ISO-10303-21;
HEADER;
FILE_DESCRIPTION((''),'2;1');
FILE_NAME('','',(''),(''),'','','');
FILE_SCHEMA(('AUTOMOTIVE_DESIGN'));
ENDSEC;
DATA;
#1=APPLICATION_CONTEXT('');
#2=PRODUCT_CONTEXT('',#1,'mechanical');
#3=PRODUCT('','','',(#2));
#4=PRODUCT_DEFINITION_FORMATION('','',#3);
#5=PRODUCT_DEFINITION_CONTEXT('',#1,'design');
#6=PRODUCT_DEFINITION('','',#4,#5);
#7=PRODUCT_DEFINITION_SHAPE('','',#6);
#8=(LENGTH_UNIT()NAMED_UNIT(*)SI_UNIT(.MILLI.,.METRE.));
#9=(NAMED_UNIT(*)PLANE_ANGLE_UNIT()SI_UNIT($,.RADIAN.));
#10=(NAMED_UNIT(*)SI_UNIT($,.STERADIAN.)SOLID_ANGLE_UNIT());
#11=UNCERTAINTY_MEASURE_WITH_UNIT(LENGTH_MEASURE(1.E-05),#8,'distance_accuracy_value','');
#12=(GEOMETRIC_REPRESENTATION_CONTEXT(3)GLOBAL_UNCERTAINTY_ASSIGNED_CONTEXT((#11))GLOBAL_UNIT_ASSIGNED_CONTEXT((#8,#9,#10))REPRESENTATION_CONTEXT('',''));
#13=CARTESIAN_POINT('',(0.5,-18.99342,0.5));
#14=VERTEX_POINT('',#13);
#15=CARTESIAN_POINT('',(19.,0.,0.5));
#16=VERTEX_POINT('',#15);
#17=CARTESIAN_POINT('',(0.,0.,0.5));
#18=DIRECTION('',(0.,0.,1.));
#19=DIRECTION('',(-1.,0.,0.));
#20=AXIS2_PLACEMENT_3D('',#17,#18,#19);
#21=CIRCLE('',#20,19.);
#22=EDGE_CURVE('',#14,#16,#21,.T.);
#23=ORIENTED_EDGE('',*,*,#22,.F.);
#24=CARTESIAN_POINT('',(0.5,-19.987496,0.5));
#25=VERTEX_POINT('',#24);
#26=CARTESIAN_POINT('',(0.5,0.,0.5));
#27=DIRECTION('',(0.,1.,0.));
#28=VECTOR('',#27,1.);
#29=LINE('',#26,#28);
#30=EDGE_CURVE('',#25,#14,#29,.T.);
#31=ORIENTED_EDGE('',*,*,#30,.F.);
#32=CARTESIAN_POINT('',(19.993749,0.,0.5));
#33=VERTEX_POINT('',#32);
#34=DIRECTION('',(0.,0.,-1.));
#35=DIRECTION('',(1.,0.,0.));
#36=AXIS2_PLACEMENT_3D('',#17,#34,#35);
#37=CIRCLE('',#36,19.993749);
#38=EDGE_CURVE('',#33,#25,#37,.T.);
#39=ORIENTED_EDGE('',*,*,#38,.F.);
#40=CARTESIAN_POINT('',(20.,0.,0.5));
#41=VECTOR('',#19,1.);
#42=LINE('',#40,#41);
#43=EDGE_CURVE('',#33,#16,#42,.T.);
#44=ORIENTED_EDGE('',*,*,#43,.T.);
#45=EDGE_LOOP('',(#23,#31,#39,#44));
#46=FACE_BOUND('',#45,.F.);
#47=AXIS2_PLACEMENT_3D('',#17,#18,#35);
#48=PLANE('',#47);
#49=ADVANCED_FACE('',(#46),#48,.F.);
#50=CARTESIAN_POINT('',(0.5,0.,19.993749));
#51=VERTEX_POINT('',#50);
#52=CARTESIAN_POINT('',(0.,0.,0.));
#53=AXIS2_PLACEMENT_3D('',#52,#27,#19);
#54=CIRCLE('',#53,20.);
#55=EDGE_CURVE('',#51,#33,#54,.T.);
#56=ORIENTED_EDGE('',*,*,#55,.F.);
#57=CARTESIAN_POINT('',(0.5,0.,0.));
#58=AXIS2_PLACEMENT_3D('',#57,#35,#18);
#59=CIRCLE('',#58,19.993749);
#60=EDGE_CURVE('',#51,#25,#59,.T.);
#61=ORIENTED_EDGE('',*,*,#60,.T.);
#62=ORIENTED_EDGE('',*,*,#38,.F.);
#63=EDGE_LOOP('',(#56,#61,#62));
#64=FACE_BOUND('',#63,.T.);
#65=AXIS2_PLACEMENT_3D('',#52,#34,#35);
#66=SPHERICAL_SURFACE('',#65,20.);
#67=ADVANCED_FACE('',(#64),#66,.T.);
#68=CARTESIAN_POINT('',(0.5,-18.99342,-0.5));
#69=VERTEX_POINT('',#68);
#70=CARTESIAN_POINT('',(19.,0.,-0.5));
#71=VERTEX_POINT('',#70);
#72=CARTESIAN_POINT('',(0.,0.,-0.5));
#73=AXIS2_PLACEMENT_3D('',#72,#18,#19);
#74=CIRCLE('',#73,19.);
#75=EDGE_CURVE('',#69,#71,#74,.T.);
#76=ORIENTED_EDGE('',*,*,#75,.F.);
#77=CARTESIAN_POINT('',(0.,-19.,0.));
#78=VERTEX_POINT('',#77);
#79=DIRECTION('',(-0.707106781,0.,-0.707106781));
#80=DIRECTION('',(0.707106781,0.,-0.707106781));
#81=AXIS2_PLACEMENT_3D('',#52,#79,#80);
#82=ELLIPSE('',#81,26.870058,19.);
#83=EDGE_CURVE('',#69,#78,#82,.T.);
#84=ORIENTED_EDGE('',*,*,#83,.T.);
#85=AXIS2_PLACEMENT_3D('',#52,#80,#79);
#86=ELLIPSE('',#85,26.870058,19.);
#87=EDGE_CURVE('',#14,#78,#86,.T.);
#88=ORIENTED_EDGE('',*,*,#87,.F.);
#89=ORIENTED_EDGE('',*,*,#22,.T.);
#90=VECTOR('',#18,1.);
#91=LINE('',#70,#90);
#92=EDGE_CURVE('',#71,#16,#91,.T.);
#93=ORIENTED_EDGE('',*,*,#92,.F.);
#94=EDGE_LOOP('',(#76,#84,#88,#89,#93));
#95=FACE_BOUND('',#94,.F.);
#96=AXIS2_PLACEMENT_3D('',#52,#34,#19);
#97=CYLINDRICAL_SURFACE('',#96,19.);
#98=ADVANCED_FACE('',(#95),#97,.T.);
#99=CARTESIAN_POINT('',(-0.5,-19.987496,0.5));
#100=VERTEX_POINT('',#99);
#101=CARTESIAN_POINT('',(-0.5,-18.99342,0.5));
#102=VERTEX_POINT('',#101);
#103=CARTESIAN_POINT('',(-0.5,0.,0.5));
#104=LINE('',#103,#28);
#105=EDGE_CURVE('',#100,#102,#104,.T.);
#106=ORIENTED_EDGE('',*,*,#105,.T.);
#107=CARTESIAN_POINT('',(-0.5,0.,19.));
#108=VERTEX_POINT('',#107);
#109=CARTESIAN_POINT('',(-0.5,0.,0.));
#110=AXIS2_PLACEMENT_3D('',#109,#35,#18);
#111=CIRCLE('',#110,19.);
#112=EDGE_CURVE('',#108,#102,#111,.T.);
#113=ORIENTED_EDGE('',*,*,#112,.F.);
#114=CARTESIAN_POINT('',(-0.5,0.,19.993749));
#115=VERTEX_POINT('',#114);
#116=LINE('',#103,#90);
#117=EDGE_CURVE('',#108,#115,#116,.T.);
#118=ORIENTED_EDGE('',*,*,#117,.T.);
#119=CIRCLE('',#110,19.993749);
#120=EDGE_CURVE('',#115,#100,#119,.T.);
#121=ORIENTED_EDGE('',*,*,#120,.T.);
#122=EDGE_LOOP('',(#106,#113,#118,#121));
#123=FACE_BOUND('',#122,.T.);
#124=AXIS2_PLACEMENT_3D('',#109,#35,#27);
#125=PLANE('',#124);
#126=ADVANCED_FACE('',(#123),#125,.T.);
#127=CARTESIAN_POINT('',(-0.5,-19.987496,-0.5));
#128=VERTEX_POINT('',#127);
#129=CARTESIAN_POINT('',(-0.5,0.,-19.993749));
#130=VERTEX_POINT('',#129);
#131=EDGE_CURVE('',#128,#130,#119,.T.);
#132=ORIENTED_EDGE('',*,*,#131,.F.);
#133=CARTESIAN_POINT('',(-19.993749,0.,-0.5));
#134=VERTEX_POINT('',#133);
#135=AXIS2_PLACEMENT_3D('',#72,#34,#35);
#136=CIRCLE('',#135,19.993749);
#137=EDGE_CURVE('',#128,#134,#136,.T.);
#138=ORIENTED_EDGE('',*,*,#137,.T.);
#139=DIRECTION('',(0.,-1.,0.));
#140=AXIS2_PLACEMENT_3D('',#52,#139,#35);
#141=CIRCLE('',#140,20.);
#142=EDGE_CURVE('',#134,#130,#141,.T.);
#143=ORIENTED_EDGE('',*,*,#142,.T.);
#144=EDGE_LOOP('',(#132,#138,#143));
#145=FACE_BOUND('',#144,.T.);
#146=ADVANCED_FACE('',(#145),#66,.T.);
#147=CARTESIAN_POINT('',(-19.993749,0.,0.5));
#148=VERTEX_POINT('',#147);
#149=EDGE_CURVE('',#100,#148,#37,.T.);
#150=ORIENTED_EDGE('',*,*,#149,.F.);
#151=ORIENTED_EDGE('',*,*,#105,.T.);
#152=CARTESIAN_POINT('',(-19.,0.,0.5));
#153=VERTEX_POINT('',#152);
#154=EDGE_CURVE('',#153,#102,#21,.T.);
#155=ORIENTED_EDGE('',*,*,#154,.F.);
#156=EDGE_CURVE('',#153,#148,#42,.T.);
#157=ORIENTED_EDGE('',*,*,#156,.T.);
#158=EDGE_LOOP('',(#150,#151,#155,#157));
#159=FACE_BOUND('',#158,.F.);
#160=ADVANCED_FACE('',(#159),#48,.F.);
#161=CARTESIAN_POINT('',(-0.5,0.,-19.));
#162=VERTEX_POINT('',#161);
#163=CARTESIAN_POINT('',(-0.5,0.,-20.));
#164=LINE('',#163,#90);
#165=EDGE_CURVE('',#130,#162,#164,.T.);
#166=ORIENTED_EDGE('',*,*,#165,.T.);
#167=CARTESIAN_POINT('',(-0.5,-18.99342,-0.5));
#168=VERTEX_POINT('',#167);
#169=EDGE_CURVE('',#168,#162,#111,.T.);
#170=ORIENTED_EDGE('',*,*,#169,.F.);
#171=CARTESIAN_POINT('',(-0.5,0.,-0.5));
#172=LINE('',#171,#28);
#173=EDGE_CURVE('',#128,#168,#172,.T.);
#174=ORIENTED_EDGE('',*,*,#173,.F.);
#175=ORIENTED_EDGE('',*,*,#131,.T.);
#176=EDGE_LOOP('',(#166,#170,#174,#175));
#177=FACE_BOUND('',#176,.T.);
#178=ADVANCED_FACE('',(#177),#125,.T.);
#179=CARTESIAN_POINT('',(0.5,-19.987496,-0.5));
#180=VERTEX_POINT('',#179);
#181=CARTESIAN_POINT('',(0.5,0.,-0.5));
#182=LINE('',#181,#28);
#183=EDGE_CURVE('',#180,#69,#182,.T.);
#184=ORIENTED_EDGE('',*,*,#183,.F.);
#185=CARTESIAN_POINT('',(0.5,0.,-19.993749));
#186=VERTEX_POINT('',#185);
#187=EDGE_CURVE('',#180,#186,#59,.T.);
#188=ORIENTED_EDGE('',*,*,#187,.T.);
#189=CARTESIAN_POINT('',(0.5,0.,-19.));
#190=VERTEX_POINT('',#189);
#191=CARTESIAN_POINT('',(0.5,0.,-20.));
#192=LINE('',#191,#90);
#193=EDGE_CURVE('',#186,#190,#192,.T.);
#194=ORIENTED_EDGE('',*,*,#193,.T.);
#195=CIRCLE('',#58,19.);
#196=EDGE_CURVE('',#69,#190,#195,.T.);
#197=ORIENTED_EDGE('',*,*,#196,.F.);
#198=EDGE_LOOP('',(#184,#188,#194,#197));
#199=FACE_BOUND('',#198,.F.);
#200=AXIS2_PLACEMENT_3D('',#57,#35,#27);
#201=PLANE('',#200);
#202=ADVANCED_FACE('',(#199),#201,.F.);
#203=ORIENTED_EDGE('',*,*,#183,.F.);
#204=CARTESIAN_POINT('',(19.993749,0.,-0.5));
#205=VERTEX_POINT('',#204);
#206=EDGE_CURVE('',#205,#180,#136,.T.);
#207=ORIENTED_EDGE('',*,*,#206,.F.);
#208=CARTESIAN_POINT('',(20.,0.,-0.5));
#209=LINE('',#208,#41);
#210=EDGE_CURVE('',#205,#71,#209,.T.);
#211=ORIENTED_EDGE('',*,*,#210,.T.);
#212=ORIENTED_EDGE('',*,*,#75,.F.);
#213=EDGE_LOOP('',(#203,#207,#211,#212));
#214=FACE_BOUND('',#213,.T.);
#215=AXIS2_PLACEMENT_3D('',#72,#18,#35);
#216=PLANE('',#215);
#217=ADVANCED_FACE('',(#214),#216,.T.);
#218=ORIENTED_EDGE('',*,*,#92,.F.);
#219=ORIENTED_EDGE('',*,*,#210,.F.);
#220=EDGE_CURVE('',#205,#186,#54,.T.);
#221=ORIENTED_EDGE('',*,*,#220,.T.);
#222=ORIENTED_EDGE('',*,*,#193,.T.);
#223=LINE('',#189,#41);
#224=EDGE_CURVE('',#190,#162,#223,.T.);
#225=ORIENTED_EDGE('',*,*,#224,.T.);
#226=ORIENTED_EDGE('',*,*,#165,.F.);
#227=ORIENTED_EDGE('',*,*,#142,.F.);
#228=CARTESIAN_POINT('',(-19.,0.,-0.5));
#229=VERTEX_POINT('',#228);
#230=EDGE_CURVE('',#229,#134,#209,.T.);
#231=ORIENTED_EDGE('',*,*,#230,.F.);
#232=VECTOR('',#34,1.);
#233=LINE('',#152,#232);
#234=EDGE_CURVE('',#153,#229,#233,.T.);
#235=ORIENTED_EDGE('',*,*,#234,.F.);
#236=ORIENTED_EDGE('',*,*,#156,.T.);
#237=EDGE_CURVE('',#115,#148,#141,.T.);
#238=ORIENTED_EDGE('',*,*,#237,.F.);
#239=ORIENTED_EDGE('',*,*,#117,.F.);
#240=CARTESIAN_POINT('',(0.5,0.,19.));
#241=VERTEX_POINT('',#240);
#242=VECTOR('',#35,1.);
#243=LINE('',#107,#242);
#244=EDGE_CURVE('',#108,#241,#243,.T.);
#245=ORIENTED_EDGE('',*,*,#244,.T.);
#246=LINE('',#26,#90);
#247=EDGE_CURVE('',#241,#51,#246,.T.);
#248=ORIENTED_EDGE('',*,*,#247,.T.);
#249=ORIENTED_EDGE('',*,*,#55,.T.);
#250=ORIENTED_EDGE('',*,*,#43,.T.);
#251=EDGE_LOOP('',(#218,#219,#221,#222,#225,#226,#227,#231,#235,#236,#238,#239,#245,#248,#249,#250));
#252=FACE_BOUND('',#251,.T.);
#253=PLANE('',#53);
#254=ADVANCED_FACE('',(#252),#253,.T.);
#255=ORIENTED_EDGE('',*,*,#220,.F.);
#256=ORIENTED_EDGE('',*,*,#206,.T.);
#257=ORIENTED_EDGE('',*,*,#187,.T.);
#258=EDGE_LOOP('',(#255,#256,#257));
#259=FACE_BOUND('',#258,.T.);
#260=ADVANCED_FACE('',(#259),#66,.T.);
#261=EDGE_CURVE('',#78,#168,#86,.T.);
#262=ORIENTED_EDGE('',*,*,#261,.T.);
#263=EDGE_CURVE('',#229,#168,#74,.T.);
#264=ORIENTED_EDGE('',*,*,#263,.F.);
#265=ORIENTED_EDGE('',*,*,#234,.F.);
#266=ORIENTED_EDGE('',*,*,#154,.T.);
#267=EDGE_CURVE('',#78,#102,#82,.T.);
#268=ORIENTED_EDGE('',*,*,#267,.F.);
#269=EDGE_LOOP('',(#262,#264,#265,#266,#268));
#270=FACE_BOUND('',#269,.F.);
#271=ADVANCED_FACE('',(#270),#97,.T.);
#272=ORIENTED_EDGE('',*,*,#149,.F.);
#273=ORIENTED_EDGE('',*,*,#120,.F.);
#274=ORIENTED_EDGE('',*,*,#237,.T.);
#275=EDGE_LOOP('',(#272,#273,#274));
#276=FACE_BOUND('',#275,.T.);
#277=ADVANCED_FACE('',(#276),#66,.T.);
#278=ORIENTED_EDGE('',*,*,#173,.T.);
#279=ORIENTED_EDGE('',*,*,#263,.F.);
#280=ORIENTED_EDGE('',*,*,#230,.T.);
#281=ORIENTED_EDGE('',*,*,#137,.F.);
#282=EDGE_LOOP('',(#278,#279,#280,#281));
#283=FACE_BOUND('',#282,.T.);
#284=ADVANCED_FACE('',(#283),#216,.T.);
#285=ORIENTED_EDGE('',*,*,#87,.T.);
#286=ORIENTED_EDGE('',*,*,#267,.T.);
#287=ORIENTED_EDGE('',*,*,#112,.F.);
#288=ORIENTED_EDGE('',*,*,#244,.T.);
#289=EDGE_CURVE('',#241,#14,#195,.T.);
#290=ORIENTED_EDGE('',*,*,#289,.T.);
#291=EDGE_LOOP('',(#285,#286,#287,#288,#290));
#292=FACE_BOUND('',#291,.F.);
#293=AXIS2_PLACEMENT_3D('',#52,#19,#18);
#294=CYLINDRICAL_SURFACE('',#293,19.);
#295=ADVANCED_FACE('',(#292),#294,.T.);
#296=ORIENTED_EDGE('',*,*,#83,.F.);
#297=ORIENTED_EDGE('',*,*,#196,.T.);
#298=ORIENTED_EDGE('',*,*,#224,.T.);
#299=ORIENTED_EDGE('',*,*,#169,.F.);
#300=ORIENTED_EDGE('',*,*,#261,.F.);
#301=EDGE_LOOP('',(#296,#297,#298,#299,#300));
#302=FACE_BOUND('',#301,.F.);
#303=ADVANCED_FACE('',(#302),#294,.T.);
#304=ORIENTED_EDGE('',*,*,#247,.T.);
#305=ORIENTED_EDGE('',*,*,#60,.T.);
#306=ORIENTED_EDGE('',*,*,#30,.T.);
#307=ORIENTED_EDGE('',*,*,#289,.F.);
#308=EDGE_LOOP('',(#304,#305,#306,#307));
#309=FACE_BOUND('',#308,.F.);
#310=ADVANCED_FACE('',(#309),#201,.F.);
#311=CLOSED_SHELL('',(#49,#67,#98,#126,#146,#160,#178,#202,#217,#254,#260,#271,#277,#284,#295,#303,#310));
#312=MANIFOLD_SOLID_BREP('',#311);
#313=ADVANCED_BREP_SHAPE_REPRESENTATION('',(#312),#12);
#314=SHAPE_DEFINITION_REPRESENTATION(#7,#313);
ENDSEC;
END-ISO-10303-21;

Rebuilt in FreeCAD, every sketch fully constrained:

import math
import FreeCAD as App
import Part
import Sketcher

V = App.Vector

doc = App.newDocument("Part")
body = doc.addObject("PartDesign::Body", "Body")

# Sketch on XZ plane
sketch1 = body.newObject("Sketcher::SketchObject", "Sketch")
sketch1.AttachmentSupport = (doc.getObject("XZ_Plane"), [""])
sketch1.MapMode = "FlatFace"
sketch1.addGeometry(Part.LineSegment(V(0, -20, 0), V(0, 20, 0)), False)
sketch1.addGeometry(Part.ArcOfCircle(Part.Circle(V(0, 0, 0), V(0, 0, 1), 20), math.radians(-90), math.radians(90)), False)
sketch1.addConstraint(Sketcher.Constraint("Coincident", 0, 1, 1, 1))
sketch1.addConstraint(Sketcher.Constraint("Coincident", 1, 2, 0, 2))
sketch1.addConstraint(Sketcher.Constraint("Vertical", 0))
sketch1.addConstraint(Sketcher.Constraint("Coincident", 1, 3, -1, 1))
sketch1.addConstraint(Sketcher.Constraint("PointOnObject", 0, 1, -2))
sketch1.addConstraint(Sketcher.Constraint("Radius", 1, 20.0))
revolution = body.newObject("PartDesign::Revolution", "Revolution")
revolution.Profile = sketch1
revolution.ReferenceAxis = (sketch1, ["V_Axis"])
revolution.Angle = 180
revolution.Reversed = True

# Sketch on XY plane
sketch2 = body.newObject("Sketcher::SketchObject", "Sketch001")
sketch2.AttachmentSupport = (doc.getObject("XY_Plane"), [""])
sketch2.MapMode = "FlatFace"
sketch2.addGeometry(Part.ArcOfCircle(Part.Circle(V(0, 0, 0), V(0, 0, 1), 20), math.radians(180), math.radians(360)), False)
sketch2.addGeometry(Part.LineSegment(V(20, 0, 0), V(19, 0, 0)), False)
sketch2.addGeometry(Part.ArcOfCircle(Part.Circle(V(0, 0, 0), V(0, 0, 1), 19), math.radians(180), math.radians(360)), False)
sketch2.addGeometry(Part.LineSegment(V(-19, 0, 0), V(-20, 0, 0)), False)
sketch2.addConstraint(Sketcher.Constraint("Coincident", 0, 2, 1, 1))
sketch2.addConstraint(Sketcher.Constraint("Coincident", 1, 2, 2, 2))
sketch2.addConstraint(Sketcher.Constraint("Coincident", 2, 1, 3, 1))
sketch2.addConstraint(Sketcher.Constraint("Coincident", 3, 2, 0, 1))
sketch2.addConstraint(Sketcher.Constraint("Horizontal", 1))
sketch2.addConstraint(Sketcher.Constraint("Horizontal", 3))
sketch2.addConstraint(Sketcher.Constraint("Coincident", 0, 3, -1, 1))
sketch2.addConstraint(Sketcher.Constraint("Coincident", 2, 3, -1, 1))
sketch2.addConstraint(Sketcher.Constraint("PointOnObject", 0, 2, -1))
sketch2.addConstraint(Sketcher.Constraint("PointOnObject", 2, 1, -1))
sketch2.addConstraint(Sketcher.Constraint("DistanceX", 1, 2, 1, 1, 1.0))
sketch2.addConstraint(Sketcher.Constraint("Radius", 0, 20.0))
pocket1 = body.newObject("PartDesign::Pocket", "Pocket")
pocket1.Profile = sketch2
pocket1.Length = 1
pocket1.Midplane = True

# Sketch on YZ plane
sketch3 = body.newObject("Sketcher::SketchObject", "Sketch002")
sketch3.AttachmentSupport = (doc.getObject("YZ_Plane"), [""])
sketch3.MapMode = "FlatFace"
sketch3.addGeometry(Part.ArcOfCircle(Part.Circle(V(0, 0, 0), V(0, 0, 1), 19), math.radians(90), math.radians(270)), False)
sketch3.addGeometry(Part.LineSegment(V(0, 19, 0), V(0, 20, 0)), False)
sketch3.addGeometry(Part.ArcOfCircle(Part.Circle(V(0, 0, 0), V(0, 0, 1), 20), math.radians(90), math.radians(270)), False)
sketch3.addGeometry(Part.LineSegment(V(0, -20, 0), V(0, -19, 0)), False)
sketch3.addConstraint(Sketcher.Constraint("Coincident", 0, 1, 1, 1))
sketch3.addConstraint(Sketcher.Constraint("Coincident", 1, 2, 2, 1))
sketch3.addConstraint(Sketcher.Constraint("Coincident", 2, 2, 3, 1))
sketch3.addConstraint(Sketcher.Constraint("Coincident", 3, 2, 0, 2))
sketch3.addConstraint(Sketcher.Constraint("Vertical", 1))
sketch3.addConstraint(Sketcher.Constraint("Vertical", 3))
sketch3.addConstraint(Sketcher.Constraint("Coincident", 0, 3, -1, 1))
sketch3.addConstraint(Sketcher.Constraint("Coincident", 2, 3, -1, 1))
sketch3.addConstraint(Sketcher.Constraint("PointOnObject", 0, 1, -2))
sketch3.addConstraint(Sketcher.Constraint("PointOnObject", 2, 2, -2))
sketch3.addConstraint(Sketcher.Constraint("DistanceY", 1, 1, 1, 2, 1.0))
sketch3.addConstraint(Sketcher.Constraint("Radius", 0, 19.0))
pocket2 = body.newObject("PartDesign::Pocket", "Pocket001")
pocket2.Profile = sketch3
pocket2.Length = 1
pocket2.Midplane = True

doc.recompute()
